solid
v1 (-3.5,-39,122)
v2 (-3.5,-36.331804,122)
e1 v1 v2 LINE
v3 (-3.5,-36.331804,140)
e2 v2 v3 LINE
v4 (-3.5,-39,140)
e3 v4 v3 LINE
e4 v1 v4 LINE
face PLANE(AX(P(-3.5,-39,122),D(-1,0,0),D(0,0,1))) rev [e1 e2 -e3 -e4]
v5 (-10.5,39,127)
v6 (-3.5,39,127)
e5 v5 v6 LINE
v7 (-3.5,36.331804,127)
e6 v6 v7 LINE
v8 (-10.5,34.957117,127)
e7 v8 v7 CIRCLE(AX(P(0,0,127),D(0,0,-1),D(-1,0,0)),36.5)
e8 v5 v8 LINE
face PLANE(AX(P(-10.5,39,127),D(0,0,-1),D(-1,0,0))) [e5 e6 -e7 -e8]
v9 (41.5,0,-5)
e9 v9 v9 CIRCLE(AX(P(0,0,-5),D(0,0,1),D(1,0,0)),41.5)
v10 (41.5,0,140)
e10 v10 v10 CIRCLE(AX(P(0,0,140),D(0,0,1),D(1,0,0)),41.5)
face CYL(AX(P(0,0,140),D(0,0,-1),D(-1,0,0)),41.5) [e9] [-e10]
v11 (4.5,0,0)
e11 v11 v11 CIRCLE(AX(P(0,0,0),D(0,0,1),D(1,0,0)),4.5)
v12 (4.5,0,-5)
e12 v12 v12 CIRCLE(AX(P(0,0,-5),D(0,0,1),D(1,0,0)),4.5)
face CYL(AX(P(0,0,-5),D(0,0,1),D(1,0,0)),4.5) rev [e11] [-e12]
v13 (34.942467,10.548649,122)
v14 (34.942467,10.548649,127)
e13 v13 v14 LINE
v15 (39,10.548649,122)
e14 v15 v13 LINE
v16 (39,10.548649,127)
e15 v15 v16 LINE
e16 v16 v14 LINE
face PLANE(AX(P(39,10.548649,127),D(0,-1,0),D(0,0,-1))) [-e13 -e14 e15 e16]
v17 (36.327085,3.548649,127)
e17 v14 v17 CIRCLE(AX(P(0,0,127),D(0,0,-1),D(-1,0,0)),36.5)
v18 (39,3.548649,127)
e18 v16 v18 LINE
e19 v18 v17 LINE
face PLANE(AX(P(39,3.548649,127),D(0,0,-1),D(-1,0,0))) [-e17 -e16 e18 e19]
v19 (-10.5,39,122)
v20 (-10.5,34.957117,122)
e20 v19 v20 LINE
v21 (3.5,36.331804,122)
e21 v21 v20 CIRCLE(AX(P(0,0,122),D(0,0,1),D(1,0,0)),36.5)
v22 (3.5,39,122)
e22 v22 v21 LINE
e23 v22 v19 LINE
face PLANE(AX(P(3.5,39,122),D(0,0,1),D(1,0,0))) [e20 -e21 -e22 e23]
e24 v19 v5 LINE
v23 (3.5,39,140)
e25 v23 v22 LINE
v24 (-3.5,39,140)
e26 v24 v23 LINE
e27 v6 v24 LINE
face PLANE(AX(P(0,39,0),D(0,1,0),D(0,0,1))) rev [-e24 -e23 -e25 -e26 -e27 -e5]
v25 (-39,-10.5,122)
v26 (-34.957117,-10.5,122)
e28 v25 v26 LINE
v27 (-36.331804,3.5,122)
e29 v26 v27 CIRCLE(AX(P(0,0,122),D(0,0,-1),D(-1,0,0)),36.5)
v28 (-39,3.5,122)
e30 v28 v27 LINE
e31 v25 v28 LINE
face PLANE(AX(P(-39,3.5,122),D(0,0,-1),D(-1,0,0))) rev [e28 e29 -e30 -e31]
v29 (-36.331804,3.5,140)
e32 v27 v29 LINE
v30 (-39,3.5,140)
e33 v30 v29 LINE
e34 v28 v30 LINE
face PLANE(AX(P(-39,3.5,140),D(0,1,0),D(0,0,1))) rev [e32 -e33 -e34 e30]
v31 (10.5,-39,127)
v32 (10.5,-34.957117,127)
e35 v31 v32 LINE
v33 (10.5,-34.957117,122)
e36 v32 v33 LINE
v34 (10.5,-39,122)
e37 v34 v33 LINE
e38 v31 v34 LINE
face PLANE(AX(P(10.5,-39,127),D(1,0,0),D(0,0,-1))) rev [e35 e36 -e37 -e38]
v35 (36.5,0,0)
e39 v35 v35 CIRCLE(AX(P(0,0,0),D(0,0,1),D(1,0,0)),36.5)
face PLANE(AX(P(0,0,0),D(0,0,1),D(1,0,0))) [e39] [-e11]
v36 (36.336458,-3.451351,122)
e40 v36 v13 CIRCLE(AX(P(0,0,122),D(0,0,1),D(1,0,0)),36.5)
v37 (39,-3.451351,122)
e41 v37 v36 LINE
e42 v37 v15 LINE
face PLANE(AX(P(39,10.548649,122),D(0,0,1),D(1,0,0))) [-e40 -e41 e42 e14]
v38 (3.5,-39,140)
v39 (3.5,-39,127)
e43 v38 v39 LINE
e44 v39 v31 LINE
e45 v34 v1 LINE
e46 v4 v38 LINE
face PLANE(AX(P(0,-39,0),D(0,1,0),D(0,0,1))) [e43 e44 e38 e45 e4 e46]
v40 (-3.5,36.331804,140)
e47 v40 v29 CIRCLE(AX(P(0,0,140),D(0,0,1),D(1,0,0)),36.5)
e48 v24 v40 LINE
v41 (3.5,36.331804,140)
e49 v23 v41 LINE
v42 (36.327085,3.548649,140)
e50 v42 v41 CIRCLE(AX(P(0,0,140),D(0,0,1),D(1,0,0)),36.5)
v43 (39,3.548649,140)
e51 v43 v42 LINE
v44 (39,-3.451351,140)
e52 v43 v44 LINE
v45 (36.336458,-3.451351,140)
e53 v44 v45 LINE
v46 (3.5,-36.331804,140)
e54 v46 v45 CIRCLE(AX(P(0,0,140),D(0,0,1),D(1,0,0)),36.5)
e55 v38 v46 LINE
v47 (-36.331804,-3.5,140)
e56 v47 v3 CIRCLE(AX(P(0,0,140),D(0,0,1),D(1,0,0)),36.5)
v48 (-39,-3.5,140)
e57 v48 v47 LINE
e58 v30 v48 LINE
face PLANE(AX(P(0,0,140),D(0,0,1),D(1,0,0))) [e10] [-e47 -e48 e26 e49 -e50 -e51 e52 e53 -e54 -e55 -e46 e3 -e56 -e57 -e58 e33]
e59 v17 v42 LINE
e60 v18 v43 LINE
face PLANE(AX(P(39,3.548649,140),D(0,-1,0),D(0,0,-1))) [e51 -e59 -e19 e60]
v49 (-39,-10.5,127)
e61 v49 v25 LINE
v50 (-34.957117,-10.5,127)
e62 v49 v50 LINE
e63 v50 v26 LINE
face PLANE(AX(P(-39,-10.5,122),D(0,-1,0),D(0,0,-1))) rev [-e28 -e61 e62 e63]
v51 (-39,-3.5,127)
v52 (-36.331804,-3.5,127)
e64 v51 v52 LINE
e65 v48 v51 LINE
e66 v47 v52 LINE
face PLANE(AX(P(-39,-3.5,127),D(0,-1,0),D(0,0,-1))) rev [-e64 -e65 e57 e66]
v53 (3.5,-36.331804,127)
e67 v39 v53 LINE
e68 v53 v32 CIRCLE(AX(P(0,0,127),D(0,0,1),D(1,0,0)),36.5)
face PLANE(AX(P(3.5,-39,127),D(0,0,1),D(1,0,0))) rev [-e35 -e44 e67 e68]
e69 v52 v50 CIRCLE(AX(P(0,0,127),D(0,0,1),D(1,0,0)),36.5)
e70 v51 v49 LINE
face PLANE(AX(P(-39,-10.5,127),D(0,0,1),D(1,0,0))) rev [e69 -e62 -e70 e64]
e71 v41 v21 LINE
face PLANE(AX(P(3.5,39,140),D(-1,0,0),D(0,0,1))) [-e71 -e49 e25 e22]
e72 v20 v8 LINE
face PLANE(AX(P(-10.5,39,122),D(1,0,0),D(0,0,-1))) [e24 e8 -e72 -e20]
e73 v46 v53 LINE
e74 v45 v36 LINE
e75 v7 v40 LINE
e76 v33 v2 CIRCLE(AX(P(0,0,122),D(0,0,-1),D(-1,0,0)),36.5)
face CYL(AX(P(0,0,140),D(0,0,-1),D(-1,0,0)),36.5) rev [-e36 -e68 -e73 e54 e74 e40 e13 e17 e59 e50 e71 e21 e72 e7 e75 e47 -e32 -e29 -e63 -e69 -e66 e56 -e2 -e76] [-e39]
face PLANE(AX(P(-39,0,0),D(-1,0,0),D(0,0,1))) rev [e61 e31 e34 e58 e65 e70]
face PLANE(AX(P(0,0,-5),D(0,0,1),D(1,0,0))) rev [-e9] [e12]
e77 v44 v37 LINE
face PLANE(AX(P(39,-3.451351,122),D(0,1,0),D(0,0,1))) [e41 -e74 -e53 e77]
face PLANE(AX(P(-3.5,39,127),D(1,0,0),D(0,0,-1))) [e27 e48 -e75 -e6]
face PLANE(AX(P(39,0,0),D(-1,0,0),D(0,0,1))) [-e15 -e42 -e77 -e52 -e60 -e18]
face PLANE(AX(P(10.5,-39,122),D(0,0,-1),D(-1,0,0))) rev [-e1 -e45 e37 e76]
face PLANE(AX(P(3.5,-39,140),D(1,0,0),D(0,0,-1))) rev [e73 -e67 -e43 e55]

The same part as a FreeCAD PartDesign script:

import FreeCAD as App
import Part
import Sketcher

V = App.Vector

doc = App.newDocument("Part")
body = doc.addObject("PartDesign::Body", "Body")

# Sketch on XY plane
sketch1 = body.newObject("Sketcher::SketchObject", "Sketch")
sketch1.AttachmentSupport = (doc.getObject("XY_Plane"), [""])
sketch1.MapMode = "FlatFace"
sketch1.addGeometry(Part.Circle(V(0, 0, 0), V(0, 0, 1), 41.5), False)
sketch1.addGeometry(Part.Circle(V(0, 0, 0), V(0, 0, 1), 36.5), False)
sketch1.addConstraint(Sketcher.Constraint("Coincident", 0, 3, -1, 1))
sketch1.addConstraint(Sketcher.Constraint("Coincident", 1, 3, -1, 1))
sketch1.addConstraint(Sketcher.Constraint("Diameter", 0, 83.0))
sketch1.addConstraint(Sketcher.Constraint("Diameter", 1, 73.0))
pad1 = body.newObject("PartDesign::Pad", "Pad")
pad1.Profile = sketch1
pad1.Length = 140

# Sketch on XY plane
sketch2 = body.newObject("Sketcher::SketchObject", "Sketch001")
sketch2.AttachmentSupport = (doc.getObject("XY_Plane"), [""])
sketch2.MapMode = "FlatFace"
sketch2.AttachmentOffset = App.Placement(V(0, 0, -5), App.Rotation())
sketch2.addGeometry(Part.Circle(V(0, 0, 0), V(0, 0, 1), 41.5), False)
sketch2.addGeometry(Part.Circle(V(0, 0, 0), V(0, 0, 1), 4.5), False)
sketch2.addConstraint(Sketcher.Constraint("Coincident", 0, 3, -1, 1))
sketch2.addConstraint(Sketcher.Constraint("Coincident", 1, 3, -1, 1))
sketch2.addConstraint(Sketcher.Constraint("Diameter", 0, 83.0))
sketch2.addConstraint(Sketcher.Constraint("Diameter", 1, 9.0))
pad2 = body.newObject("PartDesign::Pad", "Pad001")
pad2.Profile = sketch2
pad2.Length = 5

# Sketch on XZ plane
sketch3 = body.newObject("Sketcher::SketchObject", "Sketch002")
sketch3.AttachmentSupport = (doc.getObject("XZ_Plane"), [""])
sketch3.MapMode = "FlatFace"
sketch3.addGeometry(Part.LineSegment(V(3.5, 127, 0), V(10.5, 127, 0)), False)
sketch3.addGeometry(Part.LineSegment(V(10.5, 127, 0), V(10.5, 122, 0)), False)
sketch3.addGeometry(Part.LineSegment(V(10.5, 122, 0), V(-3.5, 122, 0)), False)
sketch3.addGeometry(Part.LineSegment(V(-3.5, 122, 0), V(-3.5, 140, 0)), False)
sketch3.addGeometry(Part.LineSegment(V(-3.5, 140, 0), V(3.5, 140, 0)), False)
sketch3.addGeometry(Part.LineSegment(V(3.5, 140, 0), V(3.5, 127, 0)), False)
sketch3.addConstraint(Sketcher.Constraint("Coincident", 0, 2, 1, 1))
sketch3.addConstraint(Sketcher.Constraint("Coincident", 1, 2, 2, 1))
sketch3.addConstraint(Sketcher.Constraint("Coincident", 2, 2, 3, 1))
sketch3.addConstraint(Sketcher.Constraint("Coincident", 3, 2, 4, 1))
sketch3.addConstraint(Sketcher.Constraint("Coincident", 4, 2, 5, 1))
sketch3.addConstraint(Sketcher.Constraint("Coincident", 5, 2, 0, 1))
sketch3.addConstraint(Sketcher.Constraint("Horizontal", 0))
sketch3.addConstraint(Sketcher.Constraint("Vertical", 1))
sketch3.addConstraint(Sketcher.Constraint("Horizontal", 2))
sketch3.addConstraint(Sketcher.Constraint("Vertical", 3))
sketch3.addConstraint(Sketcher.Constraint("Horizontal", 4))
sketch3.addConstraint(Sketcher.Constraint("Vertical", 5))
sketch3.addConstraint(Sketcher.Constraint("Equal", 0, 4))
sketch3.addConstraint(Sketcher.Constraint("DistanceX", 0, 1, 0, 2, 7.0))
sketch3.addConstraint(Sketcher.Constraint("DistanceY", 1, 2, 1, 1, 5.0))
sketch3.addConstraint(Sketcher.Constraint("DistanceY", 3, 1, 3, 2, 18.0))
sketch3.addConstraint(Sketcher.Constraint("DistanceY", -1, 1, 0, 2, 127.0))
sketch3.addConstraint(Sketcher.Constraint("DistanceX", -1, 1, 0, 2, 10.5))
pocket1 = body.newObject("PartDesign::Pocket", "Pocket")
pocket1.Profile = sketch3
pocket1.Length = 39
pocket1.Reversed = True

# Sketch on YZ plane
sketch4 = body.newObject("Sketcher::SketchObject", "Sketch003")
sketch4.AttachmentSupport = (doc.getObject("YZ_Plane"), [""])
sketch4.MapMode = "FlatFace"
sketch4.addGeometry(Part.LineSegment(V(3.548649, 127, 0), V(3.548649, 140, 0)), False)
sketch4.addGeometry(Part.LineSegment(V(3.548649, 140, 0), V(-3.451351, 140, 0)), False)
sketch4.addGeometry(Part.LineSegment(V(-3.451351, 140, 0), V(-3.451351, 122, 0)), False)
sketch4.addGeometry(Part.LineSegment(V(-3.451351, 122, 0), V(10.548649, 122, 0)), False)
sketch4.addGeometry(Part.LineSegment(V(10.548649, 122, 0), V(10.548649, 127, 0)), False)
sketch4.addGeometry(Part.LineSegment(V(10.548649, 127, 0), V(3.548649, 127, 0)), False)
sketch4.addConstraint(Sketcher.Constraint("Coincident", 0, 2, 1, 1))
sketch4.addConstraint(Sketcher.Constraint("Coincident", 1, 2, 2, 1))
sketch4.addConstraint(Sketcher.Constraint("Coincident", 2, 2, 3, 1))
sketch4.addConstraint(Sketcher.Constraint("Coincident", 3, 2, 4, 1))
sketch4.addConstraint(Sketcher.Constraint("Coincident", 4, 2, 5, 1))
sketch4.addConstraint(Sketcher.Constraint("Coincident", 5, 2, 0, 1))
sketch4.addConstraint(Sketcher.Constraint("Vertical", 0))
sketch4.addConstraint(Sketcher.Constraint("Horizontal", 1))
sketch4.addConstraint(Sketcher.Constraint("Vertical", 2))
sketch4.addConstraint(Sketcher.Constraint("Horizontal", 3))
sketch4.addConstraint(Sketcher.Constraint("Vertical", 4))
sketch4.addConstraint(Sketcher.Constraint("Horizontal", 5))
sketch4.addConstraint(Sketcher.Constraint("Equal", 1, 5))
sketch4.addConstraint(Sketcher.Constraint("DistanceX", 1, 2, 1, 1, 7.0))
sketch4.addConstraint(Sketcher.Constraint("DistanceY", 0, 1, 0, 2, 13.0))
sketch4.addConstraint(Sketcher.Constraint("DistanceY", 2, 2, 2, 1, 18.0))
sketch4.addConstraint(Sketcher.Constraint("DistanceY", -1, 1, 0, 2, 140.0))
sketch4.addConstraint(Sketcher.Constraint("DistanceX", -1, 1, 0, 2, 3.548649))
pocket2 = body.newObject("PartDesign::Pocket", "Pocket001")
pocket2.Profile = sketch4
pocket2.Length = 39
pocket2.Reversed = True

# Sketch on XZ plane
sketch5 = body.newObject("Sketcher::SketchObject", "Sketch004")
sketch5.AttachmentSupport = (doc.getObject("XZ_Plane"), [""])
sketch5.MapMode = "FlatFace"
sketch5.addGeometry(Part.LineSegment(V(3.5, 140, 0), V(3.5, 122, 0)), False)
sketch5.addGeometry(Part.LineSegment(V(3.5, 122, 0), V(-10.5, 122, 0)), False)
sketch5.addGeometry(Part.LineSegment(V(-10.5, 122, 0), V(-10.5, 127, 0)), False)
sketch5.addGeometry(Part.LineSegment(V(-10.5, 127, 0), V(-3.5, 127, 0)), False)
sketch5.addGeometry(Part.LineSegment(V(-3.5, 127, 0), V(-3.5, 140, 0)), False)
sketch5.addGeometry(Part.LineSegment(V(-3.5, 140, 0), V(3.5, 140, 0)), False)
sketch5.addConstraint(Sketcher.Constraint("Coincident", 0, 2, 1, 1))
sketch5.addConstraint(Sketcher.Constraint("Coincident", 1, 2, 2, 1))
sketch5.addConstraint(Sketcher.Constraint("Coincident", 2, 2, 3, 1))
sketch5.addConstraint(Sketcher.Constraint("Coincident", 3, 2, 4, 1))
sketch5.addConstraint(Sketcher.Constraint("Coincident", 4, 2, 5, 1))
sketch5.addConstraint(Sketcher.Constraint("Coincident", 5, 2, 0, 1))
sketch5.addConstraint(Sketcher.Constraint("Vertical", 0))
sketch5.addConstraint(Sketcher.Constraint("Horizontal", 1))
sketch5.addConstraint(Sketcher.Constraint("Vertical", 2))
sketch5.addConstraint(Sketcher.Constraint("Horizontal", 3))
sketch5.addConstraint(Sketcher.Constraint("Vertical", 4))
sketch5.addConstraint(Sketcher.Constraint("Horizontal", 5))
sketch5.addConstraint(Sketcher.Constraint("Equal", 3, 5))
sketch5.addConstraint(Sketcher.Constraint("DistanceX", 1, 2, 1, 1, 14.0))
sketch5.addConstraint(Sketcher.Constraint("DistanceY", 0, 2, 0, 1, 18.0))
sketch5.addConstraint(Sketcher.Constraint("DistanceY", 2, 1, 2, 2, 5.0))
sketch5.addConstraint(Sketcher.Constraint("DistanceY", -1, 1, 0, 2, 122.0))
sketch5.addConstraint(Sketcher.Constraint("DistanceX", -1, 1, 0, 2, 3.5))
pocket3 = body.newObject("PartDesign::Pocket", "Pocket002")
pocket3.Profile = sketch5
pocket3.Length = 39

# Sketch on YZ plane
sketch6 = body.newObject("Sketcher::SketchObject", "Sketch005")
sketch6.AttachmentSupport = (doc.getObject("YZ_Plane"), [""])
sketch6.MapMode = "FlatFace"
sketch6.addGeometry(Part.LineSegment(V(-3.5, 140, 0), V(-3.5, 127, 0)), False)
sketch6.addGeometry(Part.LineSegment(V(-3.5, 127, 0), V(-10.5, 127, 0)), False)
sketch6.addGeometry(Part.LineSegment(V(-10.5, 127, 0), V(-10.5, 122, 0)), False)
sketch6.addGeometry(Part.LineSegment(V(-10.5, 122, 0), V(3.5, 122, 0)), False)
sketch6.addGeometry(Part.LineSegment(V(3.5, 122, 0), V(3.5, 140, 0)), False)
sketch6.addGeometry(Part.LineSegment(V(3.5, 140, 0), V(-3.5, 140, 0)), False)
sketch6.addConstraint(Sketcher.Constraint("Coincident", 0, 2, 1, 1))
sketch6.addConstraint(Sketcher.Constraint("Coincident", 1, 2, 2, 1))
sketch6.addConstraint(Sketcher.Constraint("Coincident", 2, 2, 3, 1))
sketch6.addConstraint(Sketcher.Constraint("Coincident", 3, 2, 4, 1))
sketch6.addConstraint(Sketcher.Constraint("Coincident", 4, 2, 5, 1))
sketch6.addConstraint(Sketcher.Constraint("Coincident", 5, 2, 0, 1))
sketch6.addConstraint(Sketcher.Constraint("Vertical", 0))
sketch6.addConstraint(Sketcher.Constraint("Horizontal", 1))
sketch6.addConstraint(Sketcher.Constraint("Vertical", 2))
sketch6.addConstraint(Sketcher.Constraint("Horizontal", 3))
sketch6.addConstraint(Sketcher.Constraint("Vertical", 4))
sketch6.addConstraint(Sketcher.Constraint("Horizontal", 5))
sketch6.addConstraint(Sketcher.Constraint("Equal", 1, 5))
sketch6.addConstraint(Sketcher.Constraint("DistanceX", 1, 2, 1, 1, 7.0))
sketch6.addConstraint(Sketcher.Constraint("DistanceY", 0, 2, 0, 1, 13.0))
sketch6.addConstraint(Sketcher.Constraint("DistanceY", 2, 2, 2, 1, 5.0))
sketch6.addConstraint(Sketcher.Constraint("DistanceY", -1, 1, 0, 2, 127.0))
sketch6.addConstraint(Sketcher.Constraint("DistanceX", 0, 2, -1, 1, 3.5))
pocket4 = body.newObject("PartDesign::Pocket", "Pocket003")
pocket4.Profile = sketch6
pocket4.Length = 39

doc.recompute()
